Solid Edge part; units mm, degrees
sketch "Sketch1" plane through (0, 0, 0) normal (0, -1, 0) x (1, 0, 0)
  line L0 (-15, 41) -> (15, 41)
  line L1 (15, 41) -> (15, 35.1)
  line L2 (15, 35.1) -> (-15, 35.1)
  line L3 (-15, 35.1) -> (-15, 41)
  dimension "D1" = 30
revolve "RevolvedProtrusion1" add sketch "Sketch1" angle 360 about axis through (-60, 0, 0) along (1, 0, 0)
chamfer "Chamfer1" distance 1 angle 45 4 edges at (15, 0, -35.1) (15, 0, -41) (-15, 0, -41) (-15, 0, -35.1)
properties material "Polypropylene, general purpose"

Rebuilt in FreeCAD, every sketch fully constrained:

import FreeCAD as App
import Part
import Sketcher


def edges_at(feature, points):
    """Names of the edges that pass closest to the given points."""
    edges = feature.Shape.Edges
    near = lambda p: min(range(len(edges)), key=lambda i: edges[i].distToShape(Part.Vertex(*p))[0])
    return sorted({f"Edge{near(p) + 1}" for p in points})

doc = App.newDocument("Part")
body = doc.addObject("PartDesign::Body", "Body")

# Sketch on XZ plane
sketch1 = body.newObject("Sketcher::SketchObject", "Sketch")
sketch1.AttachmentSupport = (doc.getObject("XZ_Plane"), [""])
sketch1.MapMode = "FlatFace"
sketch1.addGeometry([
    Part.LineSegment(App.Vector(15, 41, 0), App.Vector(-15, 41, 0)),
    Part.LineSegment(App.Vector(-15, 41, 0), App.Vector(-15, 35, 0)),
    Part.LineSegment(App.Vector(-15, 35, 0), App.Vector(15, 35, 0)),
    Part.LineSegment(App.Vector(15, 35, 0), App.Vector(15, 41, 0)),
], False)
sketch1.addConstraint([
    Sketcher.Constraint("Coincident", 0, 2, 1, 1),
    Sketcher.Constraint("Coincident", 1, 2, 2, 1),
    Sketcher.Constraint("Coincident", 2, 2, 3, 1),
    Sketcher.Constraint("Coincident", 3, 2, 0, 1),
    Sketcher.Constraint("Horizontal", 0),
    Sketcher.Constraint("Vertical", 1),
    Sketcher.Constraint("Horizontal", 2),
    Sketcher.Constraint("Vertical", 3),
    Sketcher.Constraint("DistanceX", 0, 2, -1, 1, 15.0),
    Sketcher.Constraint("DistanceX", -1, 1, 2, 2, 15.0),
    Sketcher.Constraint("DistanceY", 1, 2, 1, 1, 5.9),
    Sketcher.Constraint("DistanceY", -1, 1, 0, 2, 41.0),
])
revolution = body.newObject("PartDesign::Revolution", "Revolution")
revolution.Profile = sketch1
revolution.ReferenceAxis = (sketch1, ["H_Axis"])
revolution.Angle = 360
doc.recompute()

chamfer = body.newObject("PartDesign::Chamfer", "Chamfer")
chamfer.Base = (revolution, edges_at(revolution, [
    (15, 0, -35.1),
    (15, 0, -41),
    (-15, 0, -41),
    (-15, 0, -35.1),
]))
chamfer.Size = 1

doc.recompute()
